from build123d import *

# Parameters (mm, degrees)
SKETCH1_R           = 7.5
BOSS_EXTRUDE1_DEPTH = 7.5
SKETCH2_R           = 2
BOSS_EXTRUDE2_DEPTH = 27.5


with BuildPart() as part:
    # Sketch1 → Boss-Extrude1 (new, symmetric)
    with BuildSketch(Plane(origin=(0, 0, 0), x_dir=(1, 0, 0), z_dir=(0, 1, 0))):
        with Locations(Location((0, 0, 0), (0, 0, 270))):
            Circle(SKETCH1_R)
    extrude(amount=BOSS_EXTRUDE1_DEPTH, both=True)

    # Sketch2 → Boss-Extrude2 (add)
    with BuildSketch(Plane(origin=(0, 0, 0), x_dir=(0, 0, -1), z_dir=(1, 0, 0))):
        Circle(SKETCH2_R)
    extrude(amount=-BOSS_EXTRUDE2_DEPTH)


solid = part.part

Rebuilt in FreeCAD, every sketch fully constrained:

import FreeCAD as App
import Part
import Sketcher

doc = App.newDocument("Part")
params = doc.addObject("Spreadsheet::Sheet", "Params")
for row, (alias, value) in enumerate([
    ("sketch1_diameter", "15 mm"),
    ("pad1_length", "15 mm"),
    ("sketch2_diameter", "4 mm"),
    ("pad2_length", "27.5 mm"),
], start=1):
    params.set(f"A{row}", alias)
    params.set(f"B{row}", "=" + value)
    params.setAlias(f"B{row}", alias)

body = doc.addObject("PartDesign::Body", "Body")

# Sketch on XZ plane
sketch1 = doc.addObject("Sketcher::SketchObject", "Sketch")
body.addObject(sketch1)
sketch1.AttachmentSupport = (doc.XZ_Plane, [""])
sketch1.MapMode = "FlatFace"
sketch1.addGeometry(Part.Circle(App.Vector(0, 0, 0), App.Vector(0, 0, 1), 8), False)
sketch1.addConstraint([
    Sketcher.Constraint("Coincident", 0, 3, -1, 1),
    Sketcher.Constraint("Diameter", 0, 15.0),
])
sketch1.setExpression("Constraints[1]", "Params.sketch1_diameter")
pad1 = doc.addObject("PartDesign::Pad", "Pad")
body.addObject(pad1)
pad1.Profile = sketch1
pad1.setExpression("Length", "Params.pad1_length")
pad1.Midplane = True

# Sketch on YZ plane
sketch2 = doc.addObject("Sketcher::SketchObject", "Sketch001")
body.addObject(sketch2)
sketch2.AttachmentSupport = (doc.YZ_Plane, [""])
sketch2.MapMode = "FlatFace"
sketch2.addGeometry(Part.Circle(App.Vector(0, 0, 0), App.Vector(0, 0, 1), 2), False)
sketch2.addConstraint([
    Sketcher.Constraint("Coincident", 0, 3, -1, 1),
    Sketcher.Constraint("Diameter", 0, 4.0),
])
sketch2.setExpression("Constraints[1]", "Params.sketch2_diameter")
pad2 = doc.addObject("PartDesign::Pad", "Pad001")
body.addObject(pad2)
pad2.Profile = sketch2
pad2.setExpression("Length", "Params.pad2_length")
pad2.Reversed = True

doc.recompute()
